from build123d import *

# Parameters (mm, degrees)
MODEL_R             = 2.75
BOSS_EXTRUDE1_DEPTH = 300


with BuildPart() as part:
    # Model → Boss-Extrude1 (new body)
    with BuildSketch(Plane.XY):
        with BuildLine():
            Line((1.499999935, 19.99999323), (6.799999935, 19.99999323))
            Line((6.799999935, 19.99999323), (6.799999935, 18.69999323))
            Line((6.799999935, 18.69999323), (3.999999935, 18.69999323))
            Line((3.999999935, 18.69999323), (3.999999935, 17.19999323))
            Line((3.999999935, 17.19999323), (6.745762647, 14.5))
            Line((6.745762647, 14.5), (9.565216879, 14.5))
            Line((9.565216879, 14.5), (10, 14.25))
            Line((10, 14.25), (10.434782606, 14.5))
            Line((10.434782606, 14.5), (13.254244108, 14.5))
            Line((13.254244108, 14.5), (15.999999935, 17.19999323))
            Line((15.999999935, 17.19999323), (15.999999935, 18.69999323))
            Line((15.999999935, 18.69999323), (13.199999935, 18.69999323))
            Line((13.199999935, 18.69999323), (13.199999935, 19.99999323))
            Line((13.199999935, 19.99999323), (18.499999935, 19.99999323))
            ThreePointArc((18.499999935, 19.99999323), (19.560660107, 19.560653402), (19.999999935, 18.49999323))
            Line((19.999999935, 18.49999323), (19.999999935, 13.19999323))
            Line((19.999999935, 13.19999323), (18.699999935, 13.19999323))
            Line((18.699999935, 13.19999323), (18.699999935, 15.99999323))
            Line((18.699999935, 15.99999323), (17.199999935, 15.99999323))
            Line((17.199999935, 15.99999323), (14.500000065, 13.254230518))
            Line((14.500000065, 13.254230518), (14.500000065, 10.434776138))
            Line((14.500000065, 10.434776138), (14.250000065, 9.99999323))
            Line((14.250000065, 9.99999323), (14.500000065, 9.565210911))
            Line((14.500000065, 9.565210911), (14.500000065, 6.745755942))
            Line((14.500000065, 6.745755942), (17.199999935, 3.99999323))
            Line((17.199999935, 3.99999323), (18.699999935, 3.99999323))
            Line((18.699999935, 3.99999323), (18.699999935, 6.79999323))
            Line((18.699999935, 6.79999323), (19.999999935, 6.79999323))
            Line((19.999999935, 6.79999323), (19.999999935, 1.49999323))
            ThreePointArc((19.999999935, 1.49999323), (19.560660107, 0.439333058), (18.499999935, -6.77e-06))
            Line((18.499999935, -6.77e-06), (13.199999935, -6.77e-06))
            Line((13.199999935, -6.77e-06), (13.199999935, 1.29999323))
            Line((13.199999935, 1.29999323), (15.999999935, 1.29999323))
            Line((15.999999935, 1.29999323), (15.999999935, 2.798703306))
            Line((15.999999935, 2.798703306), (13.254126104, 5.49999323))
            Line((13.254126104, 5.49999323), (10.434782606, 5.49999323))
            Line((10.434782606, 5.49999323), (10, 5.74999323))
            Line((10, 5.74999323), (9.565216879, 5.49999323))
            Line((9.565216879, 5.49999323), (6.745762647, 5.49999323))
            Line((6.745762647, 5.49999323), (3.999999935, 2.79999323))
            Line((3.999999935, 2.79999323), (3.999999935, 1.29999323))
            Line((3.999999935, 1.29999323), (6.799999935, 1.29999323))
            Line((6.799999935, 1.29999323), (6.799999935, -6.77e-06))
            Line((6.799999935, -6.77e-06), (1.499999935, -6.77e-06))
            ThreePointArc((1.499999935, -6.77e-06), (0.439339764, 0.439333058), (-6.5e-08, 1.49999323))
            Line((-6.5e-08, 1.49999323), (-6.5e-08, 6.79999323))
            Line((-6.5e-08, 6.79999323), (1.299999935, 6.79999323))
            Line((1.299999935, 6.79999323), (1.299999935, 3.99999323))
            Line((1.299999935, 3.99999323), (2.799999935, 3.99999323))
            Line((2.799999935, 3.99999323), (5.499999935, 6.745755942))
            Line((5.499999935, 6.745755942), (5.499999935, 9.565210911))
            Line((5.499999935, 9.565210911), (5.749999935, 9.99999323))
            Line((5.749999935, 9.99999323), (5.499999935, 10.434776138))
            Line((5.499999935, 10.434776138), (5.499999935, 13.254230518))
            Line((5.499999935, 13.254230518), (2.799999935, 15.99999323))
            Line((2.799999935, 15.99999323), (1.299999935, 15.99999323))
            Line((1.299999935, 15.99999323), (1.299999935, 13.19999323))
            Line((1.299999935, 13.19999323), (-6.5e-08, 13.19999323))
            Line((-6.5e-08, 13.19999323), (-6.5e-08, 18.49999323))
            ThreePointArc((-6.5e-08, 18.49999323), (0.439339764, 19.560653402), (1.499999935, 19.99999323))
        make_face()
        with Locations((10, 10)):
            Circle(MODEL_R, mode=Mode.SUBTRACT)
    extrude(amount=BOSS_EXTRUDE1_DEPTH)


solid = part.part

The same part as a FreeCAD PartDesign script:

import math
import FreeCAD as App
import Part
import Sketcher

V = App.Vector

doc = App.newDocument("Part")
body = doc.addObject("PartDesign::Body", "Body")

# Sketch on XY plane
sketch1 = body.newObject("Sketcher::SketchObject", "Sketch")
sketch1.AttachmentSupport = (doc.getObject("XY_Plane"), [""])
sketch1.MapMode = "FlatFace"
sketch1.addGeometry([
    Part.LineSegment(V(6.8, 20, 0), V(1.5, 20, 0)),  # 0
    Part.ArcOfCircle(Part.Circle(V(1.5, 18.5, 0), V(0, 0, 1), 1.5), math.radians(90), math.radians(180)),  # 1
    Part.LineSegment(V(0, 18.5, 0), V(0, 13.2, 0)),  # 2
    Part.LineSegment(V(0, 13.2, 0), V(1.3, 13.2, 0)),  # 3
    Part.LineSegment(V(1.3, 13.2, 0), V(1.3, 16, 0)),  # 4
    Part.LineSegment(V(1.3, 16, 0), V(2.8, 16, 0)),  # 5
    Part.LineSegment(V(2.8, 16, 0), V(5.5, 13.3, 0)),  # 6
    Part.LineSegment(V(5.5, 13.3, 0), V(5.5, 10.4, 0)),  # 7
    Part.LineSegment(V(5.5, 10.4, 0), V(5.7, 10, 0)),  # 8
    Part.LineSegment(V(5.7, 10, 0), V(5.5, 9.6, 0)),  # 9
    Part.LineSegment(V(5.5, 9.6, 0), V(5.5, 6.7, 0)),  # 10
    Part.LineSegment(V(5.5, 6.7, 0), V(2.8, 4, 0)),  # 11
    Part.LineSegment(V(2.8, 4, 0), V(1.3, 4, 0)),  # 12
    Part.LineSegment(V(1.3, 4, 0), V(1.3, 6.8, 0)),  # 13
    Part.LineSegment(V(1.3, 6.8, 0), V(0, 6.8, 0)),  # 14
    Part.LineSegment(V(0, 6.8, 0), V(0, 1.5, 0)),  # 15
    Part.ArcOfCircle(Part.Circle(V(1.5, 1.5, 0), V(0, 0, 1), 1.5), math.radians(-180), math.radians(-90)),  # 16
    Part.LineSegment(V(1.5, 0, 0), V(6.8, 0, 0)),  # 17
    Part.LineSegment(V(6.8, 0, 0), V(6.8, 1.3, 0)),  # 18
    Part.LineSegment(V(6.8, 1.3, 0), V(4, 1.3, 0)),  # 19
    Part.LineSegment(V(4, 1.3, 0), V(4, 2.8, 0)),  # 20
    Part.LineSegment(V(4, 2.8, 0), V(6.7, 5.5, 0)),  # 21
    Part.LineSegment(V(6.7, 5.5, 0), V(9.6, 5.5, 0)),  # 22
    Part.LineSegment(V(9.6, 5.5, 0), V(10, 5.7, 0)),  # 23
    Part.LineSegment(V(10, 5.7, 0), V(10.4, 5.5, 0)),  # 24
    Part.LineSegment(V(10.4, 5.5, 0), V(13.3, 5.5, 0)),  # 25
    Part.LineSegment(V(13.3, 5.5, 0), V(16, 2.8, 0)),  # 26
    Part.LineSegment(V(16, 2.8, 0), V(16, 1.3, 0)),  # 27
    Part.LineSegment(V(16, 1.3, 0), V(13.2, 1.3, 0)),  # 28
    Part.LineSegment(V(13.2, 1.3, 0), V(13.2, 0, 0)),  # 29
    Part.LineSegment(V(13.2, 0, 0), V(18.5, 0, 0)),  # 30
    Part.ArcOfCircle(Part.Circle(V(18.5, 1.5, 0), V(0, 0, 1), 1.5), math.radians(-90), math.radians(0)),  # 31
    Part.LineSegment(V(20, 1.5, 0), V(20, 6.8, 0)),  # 32
    Part.LineSegment(V(20, 6.8, 0), V(18.7, 6.8, 0)),  # 33
    Part.LineSegment(V(18.7, 6.8, 0), V(18.7, 4, 0)),  # 34
    Part.LineSegment(V(18.7, 4, 0), V(17.2, 4, 0)),  # 35
    Part.LineSegment(V(17.2, 4, 0), V(14.5, 6.7, 0)),  # 36
    Part.LineSegment(V(14.5, 6.7, 0), V(14.5, 9.6, 0)),  # 37
    Part.LineSegment(V(14.5, 9.6, 0), V(14.3, 10, 0)),  # 38
    Part.LineSegment(V(14.3, 10, 0), V(14.5, 10.4, 0)),  # 39
    Part.LineSegment(V(14.5, 10.4, 0), V(14.5, 13.3, 0)),  # 40
    Part.LineSegment(V(14.5, 13.3, 0), V(17.2, 16, 0)),  # 41
    Part.LineSegment(V(17.2, 16, 0), V(18.7, 16, 0)),  # 42
    Part.LineSegment(V(18.7, 16, 0), V(18.7, 13.2, 0)),  # 43
    Part.LineSegment(V(18.7, 13.2, 0), V(20, 13.2, 0)),  # 44
    Part.LineSegment(V(20, 13.2, 0), V(20, 18.5, 0)),  # 45
    Part.ArcOfCircle(Part.Circle(V(18.5, 18.5, 0), V(0, 0, 1), 1.5), math.radians(0), math.radians(90)),  # 46
    Part.LineSegment(V(18.5, 20, 0), V(13.2, 20, 0)),  # 47
    Part.LineSegment(V(13.2, 20, 0), V(13.2, 18.7, 0)),  # 48
    Part.LineSegment(V(13.2, 18.7, 0), V(16, 18.7, 0)),  # 49
    Part.LineSegment(V(16, 18.7, 0), V(16, 17.2, 0)),  # 50
    Part.LineSegment(V(16, 17.2, 0), V(13.3, 14.5, 0)),  # 51
    Part.LineSegment(V(13.3, 14.5, 0), V(10.4, 14.5, 0)),  # 52
    Part.LineSegment(V(10.4, 14.5, 0), V(10, 14.2, 0)),  # 53
    Part.LineSegment(V(10, 14.2, 0), V(9.6, 14.5, 0)),  # 54
    Part.LineSegment(V(9.6, 14.5, 0), V(6.7, 14.5, 0)),  # 55
    Part.LineSegment(V(6.7, 14.5, 0), V(4, 17.2, 0)),  # 56
    Part.LineSegment(V(4, 17.2, 0), V(4, 18.7, 0)),  # 57
    Part.LineSegment(V(4, 18.7, 0), V(6.8, 18.7, 0)),  # 58
    Part.LineSegment(V(6.8, 18.7, 0), V(6.8, 20, 0)),  # 59
    Part.Circle(V(10, 10, 0), V(0, 0, 1), 2.8),  # 60
], False)
sketch1.addConstraint([
    Sketcher.Constraint("Tangent", 0, 2, 1, 1),
    Sketcher.Constraint("Tangent", 1, 2, 2, 1),
    Sketcher.Constraint("Coincident", 2, 2, 3, 1),
    Sketcher.Constraint("Coincident", 3, 2, 4, 1),
    Sketcher.Constraint("Coincident", 4, 2, 5, 1),
    Sketcher.Constraint("Coincident", 5, 2, 6, 1),
    Sketcher.Constraint("Coincident", 6, 2, 7, 1),
    Sketcher.Constraint("Coincident", 7, 2, 8, 1),
    Sketcher.Constraint("Coincident", 8, 2, 9, 1),
    Sketcher.Constraint("Coincident", 9, 2, 10, 1),
    Sketcher.Constraint("Coincident", 10, 2, 11, 1),
    Sketcher.Constraint("Coincident", 11, 2, 12, 1),
    Sketcher.Constraint("Coincident", 12, 2, 13, 1),
    Sketcher.Constraint("Coincident", 13, 2, 14, 1),
    Sketcher.Constraint("Coincident", 14, 2, 15, 1),
    Sketcher.Constraint("Tangent", 15, 2, 16, 1),
    Sketcher.Constraint("Tangent", 16, 2, 17, 1),
    Sketcher.Constraint("Coincident", 17, 2, 18, 1),
    Sketcher.Constraint("Coincident", 18, 2, 19, 1),
    Sketcher.Constraint("Coincident", 19, 2, 20, 1),
    Sketcher.Constraint("Coincident", 20, 2, 21, 1),
    Sketcher.Constraint("Coincident", 21, 2, 22, 1),
    Sketcher.Constraint("Coincident", 22, 2, 23, 1),
    Sketcher.Constraint("Coincident", 23, 2, 24, 1),
    Sketcher.Constraint("Coincident", 24, 2, 25, 1),
    Sketcher.Constraint("Coincident", 25, 2, 26, 1),
    Sketcher.Constraint("Coincident", 26, 2, 27, 1),
    Sketcher.Constraint("Coincident", 27, 2, 28, 1),
    Sketcher.Constraint("Coincident", 28, 2, 29, 1),
    Sketcher.Constraint("Coincident", 29, 2, 30, 1),
    Sketcher.Constraint("Tangent", 30, 2, 31, 1),
    Sketcher.Constraint("Tangent", 31, 2, 32, 1),
    Sketcher.Constraint("Coincident", 32, 2, 33, 1),
    Sketcher.Constraint("Coincident", 33, 2, 34, 1),
    Sketcher.Constraint("Coincident", 34, 2, 35, 1),
    Sketcher.Constraint("Coincident", 35, 2, 36, 1),
    Sketcher.Constraint("Coincident", 36, 2, 37, 1),
    Sketcher.Constraint("Coincident", 37, 2, 38, 1),
    Sketcher.Constraint("Coincident", 38, 2, 39, 1),
    Sketcher.Constraint("Coincident", 39, 2, 40, 1),
    Sketcher.Constraint("Coincident", 40, 2, 41, 1),
    Sketcher.Constraint("Coincident", 41, 2, 42, 1),
    Sketcher.Constraint("Coincident", 42, 2, 43, 1),
    Sketcher.Constraint("Coincident", 43, 2, 44, 1),
    Sketcher.Constraint("Coincident", 44, 2, 45, 1),
    Sketcher.Constraint("Tangent", 45, 2, 46, 1),
    Sketcher.Constraint("Tangent", 46, 2, 47, 1),
    Sketcher.Constraint("Coincident", 47, 2, 48, 1),
    Sketcher.Constraint("Coincident", 48, 2, 49, 1),
    Sketcher.Constraint("Coincident", 49, 2, 50, 1),
    Sketcher.Constraint("Coincident", 50, 2, 51, 1),
    Sketcher.Constraint("Coincident", 51, 2, 52, 1),
    Sketcher.Constraint("Coincident", 52, 2, 53, 1),
    Sketcher.Constraint("Coincident", 53, 2, 54, 1),
    Sketcher.Constraint("Coincident", 54, 2, 55, 1),
    Sketcher.Constraint("Coincident", 55, 2, 56, 1),
    Sketcher.Constraint("Coincident", 56, 2, 57, 1),
    Sketcher.Constraint("Coincident", 57, 2, 58, 1),
    Sketcher.Constraint("Coincident", 58, 2, 59, 1),
    Sketcher.Constraint("Coincident", 59, 2, 0, 1),
    Sketcher.Constraint("Horizontal", 0),
    Sketcher.Constraint("Vertical", 2),
    Sketcher.Constraint("Horizontal", 3),
    Sketcher.Constraint("Vertical", 4),
    Sketcher.Constraint("Horizontal", 5),
    Sketcher.Constraint("Vertical", 7),
    Sketcher.Constraint("Vertical", 10),
    Sketcher.Constraint("Horizontal", 12),
    Sketcher.Constraint("Vertical", 13),
    Sketcher.Constraint("Horizontal", 14),
    Sketcher.Constraint("Vertical", 15),
    Sketcher.Constraint("Horizontal", 17),
    Sketcher.Constraint("Vertical", 18),
    Sketcher.Constraint("Horizontal", 19),
    Sketcher.Constraint("Vertical", 20),
    Sketcher.Constraint("Horizontal", 22),
    Sketcher.Constraint("Horizontal", 25),
    Sketcher.Constraint("Vertical", 27),
    Sketcher.Constraint("Horizontal", 28),
    Sketcher.Constraint("Vertical", 29),
    Sketcher.Constraint("Horizontal", 30),
    Sketcher.Constraint("Vertical", 32),
    Sketcher.Constraint("Horizontal", 33),
    Sketcher.Constraint("Vertical", 34),
    Sketcher.Constraint("Horizontal", 35),
    Sketcher.Constraint("Vertical", 37),
    Sketcher.Constraint("Vertical", 40),
    Sketcher.Constraint("Horizontal", 42),
    Sketcher.Constraint("Vertical", 43),
    Sketcher.Constraint("Horizontal", 44),
    Sketcher.Constraint("Vertical", 45),
    Sketcher.Constraint("Horizontal", 47),
    Sketcher.Constraint("Vertical", 48),
    Sketcher.Constraint("Horizontal", 49),
    Sketcher.Constraint("Vertical", 50),
    Sketcher.Constraint("Horizontal", 52),
    Sketcher.Constraint("Horizontal", 55),
    Sketcher.Constraint("Vertical", 57),
    Sketcher.Constraint("Horizontal", 58),
    Sketcher.Constraint("Vertical", 59),
    Sketcher.Constraint("Equal", 1, 16),
    Sketcher.Constraint("Equal", 16, 31),
    Sketcher.Constraint("Equal", 31, 46),
    Sketcher.Constraint("PointOnObject", 1, 2, -2),
    Sketcher.Constraint("PointOnObject", 14, 2, -2),
    Sketcher.Constraint("Perpendicular", 6, 21),
    Sketcher.Constraint("Perpendicular", 8, 23),
    Sketcher.Constraint("Perpendicular", 9, 24),
    Sketcher.Constraint("Perpendicular", 21, 36),
    Sketcher.Constraint("Perpendicular", 23, 38),
    Sketcher.Constraint("Perpendicular", 24, 39),
    Sketcher.Constraint("Parallel", 11, 41),
    Sketcher.Constraint("Perpendicular", 36, 51),
    Sketcher.Constraint("Perpendicular", 38, 53),
    Sketcher.Constraint("Perpendicular", 39, 54),
    Sketcher.Constraint("Perpendicular", 41, 56),
    Sketcher.Constraint("Horizontal", 16, 3, 31, 3),
    Sketcher.Constraint("Horizontal", 1, 3, 46, 3),
    Sketcher.Constraint("Horizontal", 22, 2, 24, 2),
    Sketcher.Constraint("Horizontal", 19, 2, 27, 2),
    Sketcher.Constraint("Horizontal", 14, 2, 32, 2),
    Sketcher.Constraint("Horizontal", 12, 2, 34, 2),
    Sketcher.Constraint("Horizontal", 10, 2, 36, 2),
    Sketcher.Constraint("Horizontal", 9, 2, 37, 2),
    Sketcher.Constraint("Horizontal", 8, 2, 38, 2),
    Sketcher.Constraint("Horizontal", 7, 2, 39, 2),
    Sketcher.Constraint("Horizontal", 6, 2, 40, 2),
    Sketcher.Constraint("Horizontal", 5, 2, 41, 2),
    Sketcher.Constraint("Horizontal", 3, 2, 43, 2),
    Sketcher.Constraint("Horizontal", 52, 2, 54, 2),
    Sketcher.Constraint("Horizontal", 50, 2, 56, 2),
    Sketcher.Constraint("Horizontal", 49, 2, 57, 2),
    Sketcher.Constraint("Vertical", 31, 3, 46, 3),
    Sketcher.Constraint("Vertical", 7, 2, 9, 2),
    Sketcher.Constraint("Vertical", 5, 2, 11, 2),
    Sketcher.Constraint("Vertical", 4, 2, 12, 2),
    Sketcher.Constraint("Vertical", 60, 3, 23, 2),
    Sketcher.Constraint("Vertical", 37, 2, 39, 2),
    Sketcher.Constraint("Vertical", 35, 2, 41, 2),
    Sketcher.Constraint("Vertical", 34, 2, 42, 2),
    Sketcher.Constraint("Vertical", 29, 2, 47, 2),
    Sketcher.Constraint("Vertical", 27, 2, 49, 2),
    Sketcher.Constraint("Vertical", 24, 2, 52, 2),
    Sketcher.Constraint("Vertical", 23, 2, 53, 2),
    Sketcher.Constraint("Vertical", 21, 2, 55, 2),
    Sketcher.Constraint("Vertical", 20, 2, 56, 2),
    Sketcher.Constraint("Vertical", 18, 2, 58, 2),
    Sketcher.Constraint("Equal", 19, 28),
    Sketcher.Constraint("Equal", 17, 30),
    Sketcher.Constraint("Equal", 14, 33),
    Sketcher.Constraint("Equal", 12, 35),
    Sketcher.Constraint("Equal", 47, 2),
    Sketcher.Constraint("Equal", 58, 4),
    Sketcher.Constraint("Equal", 55, 7),
    Sketcher.Constraint("Equal", 7, 10),
    Sketcher.Constraint("Equal", 4, 13),
    Sketcher.Constraint("Equal", 2, 15),
    Sketcher.Constraint("Equal", 44, 18),
    Sketcher.Constraint("Equal", 42, 20),
    Sketcher.Constraint("Equal", 29, 48),
    Sketcher.Constraint("Equal", 20, 50),
    Sketcher.Constraint("Equal", 11, 21),
    Sketcher.Constraint("Equal", 9, 23),
    Sketcher.Constraint("Diameter", 60, 5.5),
    Sketcher.Constraint("Radius", 1, 1.5),
    Sketcher.Constraint("DistanceX", 0, 2, 0, 1, 5.3),
    Sketcher.Constraint("DistanceX", 3, 1, 3, 2, 1.3),
    Sketcher.Constraint("DistanceX", 5, 1, 5, 2, 1.5),
    Sketcher.Constraint("DistanceX", 19, 2, 19, 1, 2.8),
    Sketcher.Constraint("DistanceX", -1, 1, 60, 3, 10.0),
    Sketcher.Constraint("DistanceY", -1, 1, 60, 3, 10.0),
    Sketcher.Constraint("DistanceX", -1, 1, 26, 2, 16.0),
    Sketcher.Constraint("DistanceX", -1, 1, 6, 2, 5.5),
    Sketcher.Constraint("DistanceY", -1, 1, 51, 2, 14.5),
    Sketcher.Constraint("DistanceX", -1, 1, 8, 2, 5.75),
    Sketcher.Constraint("DistanceX", 52, 2, 52, 1, 2.819462),
    Sketcher.Constraint("DistanceY", 27, 2, 27, 1, 1.49871),
    Sketcher.Constraint("Distance", 6, 3.850872),
    Sketcher.Constraint("DistanceX", 25, 1, 25, 2, 2.819343),
])
pad1 = body.newObject("PartDesign::Pad", "Pad")
pad1.Profile = sketch1
pad1.Length = 300

doc.recompute()
